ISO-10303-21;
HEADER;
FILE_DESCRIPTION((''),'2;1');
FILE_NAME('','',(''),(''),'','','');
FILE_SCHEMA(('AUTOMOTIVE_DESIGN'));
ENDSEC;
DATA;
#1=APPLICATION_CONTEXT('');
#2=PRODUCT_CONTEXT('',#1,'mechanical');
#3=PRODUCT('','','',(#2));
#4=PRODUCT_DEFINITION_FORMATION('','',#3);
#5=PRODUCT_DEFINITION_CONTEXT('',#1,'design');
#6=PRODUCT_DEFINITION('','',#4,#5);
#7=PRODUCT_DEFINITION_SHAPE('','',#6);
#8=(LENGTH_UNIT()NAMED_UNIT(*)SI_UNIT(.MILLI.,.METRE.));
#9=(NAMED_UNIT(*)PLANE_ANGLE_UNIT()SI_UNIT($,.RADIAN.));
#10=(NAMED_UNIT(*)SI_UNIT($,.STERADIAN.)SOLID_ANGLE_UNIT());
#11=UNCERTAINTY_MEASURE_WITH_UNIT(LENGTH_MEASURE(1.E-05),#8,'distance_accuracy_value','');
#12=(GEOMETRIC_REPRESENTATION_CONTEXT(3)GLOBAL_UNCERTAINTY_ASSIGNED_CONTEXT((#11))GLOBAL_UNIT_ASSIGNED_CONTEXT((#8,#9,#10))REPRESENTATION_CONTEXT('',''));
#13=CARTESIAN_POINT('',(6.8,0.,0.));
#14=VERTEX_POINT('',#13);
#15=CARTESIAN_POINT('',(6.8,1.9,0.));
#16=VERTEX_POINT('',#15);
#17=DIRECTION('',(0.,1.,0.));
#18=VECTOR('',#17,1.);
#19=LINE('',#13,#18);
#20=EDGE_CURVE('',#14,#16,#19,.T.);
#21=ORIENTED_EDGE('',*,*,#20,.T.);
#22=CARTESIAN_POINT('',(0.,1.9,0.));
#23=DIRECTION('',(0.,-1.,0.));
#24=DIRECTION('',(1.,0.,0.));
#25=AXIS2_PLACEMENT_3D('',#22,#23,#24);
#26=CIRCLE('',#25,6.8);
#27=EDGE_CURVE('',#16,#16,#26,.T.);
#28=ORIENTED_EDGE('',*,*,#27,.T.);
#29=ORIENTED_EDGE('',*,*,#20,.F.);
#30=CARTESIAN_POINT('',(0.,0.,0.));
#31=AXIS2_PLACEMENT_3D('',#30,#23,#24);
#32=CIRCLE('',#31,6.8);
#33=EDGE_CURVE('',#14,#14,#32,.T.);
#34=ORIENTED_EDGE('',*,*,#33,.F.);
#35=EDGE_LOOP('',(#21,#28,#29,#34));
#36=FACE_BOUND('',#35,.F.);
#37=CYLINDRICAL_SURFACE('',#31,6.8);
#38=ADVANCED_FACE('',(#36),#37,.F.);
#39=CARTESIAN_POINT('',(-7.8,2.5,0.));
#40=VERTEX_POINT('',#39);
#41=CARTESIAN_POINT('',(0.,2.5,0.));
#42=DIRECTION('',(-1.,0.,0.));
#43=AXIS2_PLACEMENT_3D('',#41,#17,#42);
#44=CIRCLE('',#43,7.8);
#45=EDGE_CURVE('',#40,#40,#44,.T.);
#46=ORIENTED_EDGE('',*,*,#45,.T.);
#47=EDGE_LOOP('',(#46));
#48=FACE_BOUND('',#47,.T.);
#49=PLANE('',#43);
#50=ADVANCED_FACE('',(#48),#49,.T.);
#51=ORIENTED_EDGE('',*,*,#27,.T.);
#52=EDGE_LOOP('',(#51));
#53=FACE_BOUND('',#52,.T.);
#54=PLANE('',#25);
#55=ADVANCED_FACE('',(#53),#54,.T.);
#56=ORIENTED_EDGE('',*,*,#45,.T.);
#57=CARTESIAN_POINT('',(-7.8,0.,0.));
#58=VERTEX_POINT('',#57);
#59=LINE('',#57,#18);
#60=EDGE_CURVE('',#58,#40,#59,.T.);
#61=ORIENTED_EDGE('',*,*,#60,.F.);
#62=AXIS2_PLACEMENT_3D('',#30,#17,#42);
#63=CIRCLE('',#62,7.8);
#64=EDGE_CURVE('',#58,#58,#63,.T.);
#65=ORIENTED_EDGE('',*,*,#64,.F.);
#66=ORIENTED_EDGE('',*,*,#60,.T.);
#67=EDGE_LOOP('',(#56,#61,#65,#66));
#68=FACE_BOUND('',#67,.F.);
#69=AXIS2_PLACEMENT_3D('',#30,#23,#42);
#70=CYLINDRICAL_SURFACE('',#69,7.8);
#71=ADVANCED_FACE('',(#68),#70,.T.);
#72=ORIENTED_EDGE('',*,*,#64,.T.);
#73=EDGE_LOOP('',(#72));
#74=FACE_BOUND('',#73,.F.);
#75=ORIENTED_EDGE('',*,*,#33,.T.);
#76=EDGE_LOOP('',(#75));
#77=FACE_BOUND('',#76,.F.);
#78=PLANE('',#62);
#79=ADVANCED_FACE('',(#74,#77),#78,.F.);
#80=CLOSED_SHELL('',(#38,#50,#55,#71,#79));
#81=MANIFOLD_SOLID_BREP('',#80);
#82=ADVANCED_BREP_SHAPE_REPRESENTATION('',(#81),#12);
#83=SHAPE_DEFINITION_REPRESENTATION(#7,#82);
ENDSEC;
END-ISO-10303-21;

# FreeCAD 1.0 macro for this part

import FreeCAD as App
import Part
import Sketcher
from FreeCAD import Vector
Q = App.Units.Quantity

doc = App.newDocument("Part")
body = doc.addObject("PartDesign::Body", "Body")

sketch1 = body.newObject("Sketcher::SketchObject", "Sketch")
sketch1.AttachmentSupport = (doc.getObject("XZ_Plane"), [""])
sketch1.MapMode = "FlatFace"
sketch1.addGeometry(Part.Circle(Vector(0, 0, 0), Vector(0, 0, 1), 8), False)
sketch1.addConstraint([
    Sketcher.Constraint("Coincident", 0, 3, -1, 1),
    Sketcher.Constraint("Diameter", 0, Q("15.6 mm")),
])
pad1 = body.newObject("PartDesign::Pad", "Pad")
pad1.Profile = sketch1
pad1.Length = 2.5
pad1.Reversed = True

sketch2 = body.newObject("Sketcher::SketchObject", "Sketch001")
sketch2.AttachmentSupport = (doc.getObject("XZ_Plane"), [""])
sketch2.MapMode = "FlatFace"
sketch2.addGeometry(Part.Circle(Vector(0, 0, 0), Vector(0, 0, 1), 7), False)
sketch2.addConstraint([
    Sketcher.Constraint("Coincident", 0, 3, -1, 1),
    Sketcher.Constraint("Diameter", 0, Q("13.6 mm")),
])
pocket1 = body.newObject("PartDesign::Pocket", "Pocket")
pocket1.Profile = sketch2
pocket1.Length = 1.9

doc.recompute()
